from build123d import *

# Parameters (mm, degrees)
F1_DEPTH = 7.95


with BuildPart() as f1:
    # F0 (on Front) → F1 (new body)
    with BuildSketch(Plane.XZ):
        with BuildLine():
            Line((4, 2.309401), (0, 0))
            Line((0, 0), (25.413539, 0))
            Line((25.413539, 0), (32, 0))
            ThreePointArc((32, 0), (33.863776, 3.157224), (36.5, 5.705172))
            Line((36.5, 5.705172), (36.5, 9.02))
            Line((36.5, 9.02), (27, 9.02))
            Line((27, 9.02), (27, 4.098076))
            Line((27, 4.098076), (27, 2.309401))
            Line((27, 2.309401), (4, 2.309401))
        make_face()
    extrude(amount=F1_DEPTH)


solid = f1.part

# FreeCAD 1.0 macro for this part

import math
import FreeCAD as App
import Part
import Sketcher
from FreeCAD import Vector
Q = App.Units.Quantity

doc = App.newDocument("Part")
body = doc.addObject("PartDesign::Body", "Body")

sketch1 = body.newObject("Sketcher::SketchObject", "Sketch")
sketch1.AttachmentSupport = (doc.getObject("XZ_Plane"), [""])
sketch1.MapMode = "FlatFace"
sketch1.addGeometry(Part.LineSegment(Vector(4, 2.3, 0), Vector(0, 0, 0)), False)
sketch1.addGeometry(Part.LineSegment(Vector(0, 0, 0), Vector(32, 0, 0)), False)
sketch1.addGeometry(Part.ArcOfCircle(Part.Circle(Vector(44.6, -5.3, 0), Vector(0, 0, 1), 13.7), math.radians(126), math.radians(157)), False)
sketch1.addGeometry(Part.LineSegment(Vector(36.5, 5.7, 0), Vector(36.5, 9, 0)), False)
sketch1.addGeometry(Part.LineSegment(Vector(36.5, 9, 0), Vector(27, 9, 0)), False)
sketch1.addGeometry(Part.LineSegment(Vector(27, 9, 0), Vector(27, 2.3, 0)), False)
sketch1.addGeometry(Part.LineSegment(Vector(27, 2.3, 0), Vector(4, 2.3, 0)), False)
sketch1.addConstraint(Sketcher.Constraint("Coincident", 0, 2, 1, 1))
sketch1.addConstraint(Sketcher.Constraint("Coincident", 1, 2, 2, 2))
sketch1.addConstraint(Sketcher.Constraint("Coincident", 2, 1, 3, 1))
sketch1.addConstraint(Sketcher.Constraint("Coincident", 3, 2, 4, 1))
sketch1.addConstraint(Sketcher.Constraint("Coincident", 4, 2, 5, 1))
sketch1.addConstraint(Sketcher.Constraint("Coincident", 5, 2, 6, 1))
sketch1.addConstraint(Sketcher.Constraint("Coincident", 6, 2, 0, 1))
sketch1.addConstraint(Sketcher.Constraint("Horizontal", 1))
sketch1.addConstraint(Sketcher.Constraint("Vertical", 3))
sketch1.addConstraint(Sketcher.Constraint("Horizontal", 4))
sketch1.addConstraint(Sketcher.Constraint("Vertical", 5))
sketch1.addConstraint(Sketcher.Constraint("Horizontal", 6))
sketch1.addConstraint(Sketcher.Constraint("Coincident", 0, 2, -1, 1))
sketch1.addConstraint(Sketcher.Constraint("DistanceX", 1, 1, 1, 2, Q("32 mm")))
sketch1.addConstraint(Sketcher.Constraint("DistanceX", 6, 2, 6, 1, Q("23 mm")))
sketch1.addConstraint(Sketcher.Constraint("Angle", 0, Q("-150.000001 deg")))
sketch1.addConstraint(Sketcher.Constraint("DistanceX", 4, 2, 4, 1, Q("9.5 mm")))
sketch1.addConstraint(Sketcher.Constraint("DistanceX", -1, 1, 4, 2, Q("27 mm")))
sketch1.addConstraint(Sketcher.Constraint("DistanceY", -1, 1, 3, 2, Q("9.02 mm")))
sketch1.addConstraint(Sketcher.Constraint("Radius", 2, Q("13.662845 mm")))
sketch1.addConstraint(Sketcher.Constraint("DistanceY", 3, 1, 3, 2, Q("3.314828 mm")))
pad1 = body.newObject("PartDesign::Pad", "Pad")
pad1.Profile = sketch1
pad1.Length = 7.95

doc.recompute()
